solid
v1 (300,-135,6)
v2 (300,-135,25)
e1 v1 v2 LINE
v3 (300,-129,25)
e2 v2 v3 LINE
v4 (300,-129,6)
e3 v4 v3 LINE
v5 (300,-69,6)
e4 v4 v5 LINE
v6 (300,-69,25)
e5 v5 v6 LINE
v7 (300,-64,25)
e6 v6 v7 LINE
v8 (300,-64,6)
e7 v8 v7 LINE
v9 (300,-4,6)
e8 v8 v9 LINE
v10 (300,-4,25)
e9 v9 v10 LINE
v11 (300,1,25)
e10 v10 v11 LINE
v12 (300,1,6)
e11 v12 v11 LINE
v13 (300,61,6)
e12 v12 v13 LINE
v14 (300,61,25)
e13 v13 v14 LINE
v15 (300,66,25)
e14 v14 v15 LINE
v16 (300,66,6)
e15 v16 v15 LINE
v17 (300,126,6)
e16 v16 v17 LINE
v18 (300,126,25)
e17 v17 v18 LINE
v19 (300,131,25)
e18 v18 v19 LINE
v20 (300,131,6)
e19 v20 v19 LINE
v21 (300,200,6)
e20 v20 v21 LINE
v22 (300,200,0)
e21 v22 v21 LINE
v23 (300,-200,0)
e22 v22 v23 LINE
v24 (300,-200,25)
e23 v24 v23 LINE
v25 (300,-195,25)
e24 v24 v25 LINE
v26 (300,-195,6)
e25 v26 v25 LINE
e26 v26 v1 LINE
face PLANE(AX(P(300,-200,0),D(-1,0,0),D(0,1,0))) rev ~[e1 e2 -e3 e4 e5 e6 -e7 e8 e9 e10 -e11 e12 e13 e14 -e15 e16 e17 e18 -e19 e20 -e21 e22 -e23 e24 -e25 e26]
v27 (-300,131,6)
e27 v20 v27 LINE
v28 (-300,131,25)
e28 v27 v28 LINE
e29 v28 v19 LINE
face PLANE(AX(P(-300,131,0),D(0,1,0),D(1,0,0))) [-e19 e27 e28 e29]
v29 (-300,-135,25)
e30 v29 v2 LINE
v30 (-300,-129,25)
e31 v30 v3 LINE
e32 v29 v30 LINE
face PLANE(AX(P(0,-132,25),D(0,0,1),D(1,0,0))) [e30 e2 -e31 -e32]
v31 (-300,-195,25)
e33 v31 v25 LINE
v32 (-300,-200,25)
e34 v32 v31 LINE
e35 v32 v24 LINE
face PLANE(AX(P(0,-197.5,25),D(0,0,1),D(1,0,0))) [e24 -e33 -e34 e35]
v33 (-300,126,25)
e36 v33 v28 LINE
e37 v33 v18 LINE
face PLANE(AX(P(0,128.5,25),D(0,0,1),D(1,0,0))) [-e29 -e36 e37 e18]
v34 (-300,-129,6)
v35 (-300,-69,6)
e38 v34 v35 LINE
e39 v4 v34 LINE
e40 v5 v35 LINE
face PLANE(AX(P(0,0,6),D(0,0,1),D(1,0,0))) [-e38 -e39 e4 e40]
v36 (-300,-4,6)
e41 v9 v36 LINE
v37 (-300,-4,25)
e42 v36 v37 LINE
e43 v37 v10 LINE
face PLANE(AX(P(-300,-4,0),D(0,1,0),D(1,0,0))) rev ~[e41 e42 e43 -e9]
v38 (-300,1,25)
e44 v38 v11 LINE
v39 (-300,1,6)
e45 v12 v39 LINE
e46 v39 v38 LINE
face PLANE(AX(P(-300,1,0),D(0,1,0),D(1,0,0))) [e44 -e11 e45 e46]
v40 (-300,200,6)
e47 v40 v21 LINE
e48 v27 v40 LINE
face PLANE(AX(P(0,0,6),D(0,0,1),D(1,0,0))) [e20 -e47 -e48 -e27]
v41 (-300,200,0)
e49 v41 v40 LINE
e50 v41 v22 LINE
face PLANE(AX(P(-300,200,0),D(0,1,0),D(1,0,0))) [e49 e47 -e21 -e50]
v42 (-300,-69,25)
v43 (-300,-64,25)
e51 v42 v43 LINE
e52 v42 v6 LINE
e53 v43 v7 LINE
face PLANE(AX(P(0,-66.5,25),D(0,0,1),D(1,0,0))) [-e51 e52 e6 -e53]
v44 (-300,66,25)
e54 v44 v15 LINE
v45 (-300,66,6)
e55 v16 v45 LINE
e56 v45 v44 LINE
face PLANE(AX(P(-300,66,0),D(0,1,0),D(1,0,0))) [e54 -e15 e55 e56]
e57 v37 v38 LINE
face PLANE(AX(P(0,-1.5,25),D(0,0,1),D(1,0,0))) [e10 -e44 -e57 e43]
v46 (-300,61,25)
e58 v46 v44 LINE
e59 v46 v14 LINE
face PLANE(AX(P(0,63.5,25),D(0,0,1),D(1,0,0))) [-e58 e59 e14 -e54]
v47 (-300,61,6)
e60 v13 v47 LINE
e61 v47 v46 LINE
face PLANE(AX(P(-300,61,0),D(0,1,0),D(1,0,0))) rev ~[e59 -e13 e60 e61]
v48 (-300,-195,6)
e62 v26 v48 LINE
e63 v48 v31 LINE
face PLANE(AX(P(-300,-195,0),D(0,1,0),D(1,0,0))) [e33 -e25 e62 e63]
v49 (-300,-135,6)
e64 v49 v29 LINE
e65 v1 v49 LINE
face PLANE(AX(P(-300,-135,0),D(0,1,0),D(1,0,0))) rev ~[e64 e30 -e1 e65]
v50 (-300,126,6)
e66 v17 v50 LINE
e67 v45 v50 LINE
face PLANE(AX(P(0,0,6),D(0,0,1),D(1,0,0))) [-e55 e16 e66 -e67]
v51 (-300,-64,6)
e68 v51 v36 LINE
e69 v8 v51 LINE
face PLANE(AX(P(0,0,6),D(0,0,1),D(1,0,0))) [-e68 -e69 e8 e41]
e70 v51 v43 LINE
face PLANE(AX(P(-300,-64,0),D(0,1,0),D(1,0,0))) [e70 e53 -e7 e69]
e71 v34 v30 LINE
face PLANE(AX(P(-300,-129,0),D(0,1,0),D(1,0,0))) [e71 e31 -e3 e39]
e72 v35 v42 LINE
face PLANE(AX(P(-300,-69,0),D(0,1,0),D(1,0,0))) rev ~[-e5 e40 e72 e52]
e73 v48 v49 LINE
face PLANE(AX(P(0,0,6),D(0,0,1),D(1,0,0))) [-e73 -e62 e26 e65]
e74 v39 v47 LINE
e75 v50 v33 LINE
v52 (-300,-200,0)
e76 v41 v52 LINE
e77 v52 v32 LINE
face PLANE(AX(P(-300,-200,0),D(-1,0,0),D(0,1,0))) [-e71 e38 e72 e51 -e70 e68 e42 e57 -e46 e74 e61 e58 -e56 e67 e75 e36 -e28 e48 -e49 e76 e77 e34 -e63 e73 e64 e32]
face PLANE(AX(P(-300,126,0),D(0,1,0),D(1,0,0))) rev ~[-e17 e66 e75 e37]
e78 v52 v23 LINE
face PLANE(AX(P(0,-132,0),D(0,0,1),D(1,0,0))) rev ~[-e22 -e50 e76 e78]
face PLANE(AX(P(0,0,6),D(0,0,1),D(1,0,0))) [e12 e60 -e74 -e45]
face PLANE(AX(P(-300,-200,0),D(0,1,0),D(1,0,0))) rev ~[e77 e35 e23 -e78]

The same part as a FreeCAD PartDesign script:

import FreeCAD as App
import Part
import Sketcher
from FreeCAD import Vector
Q = App.Units.Quantity

doc = App.newDocument("Part")
body = doc.addObject("PartDesign::Body", "Body")

# Sketch on XY plane
sketch1 = body.newObject("Sketcher::SketchObject", "Sketch")
sketch1.AttachmentSupport = (doc.getObject("XY_Plane"), [""])
sketch1.MapMode = "FlatFace"
sketch1.addGeometry([
    Part.LineSegment(Vector(-300, 200, 0), Vector(-300, -200, 0)),
    Part.LineSegment(Vector(-300, -200, 0), Vector(300, -200, 0)),
    Part.LineSegment(Vector(300, -200, 0), Vector(300, 200, 0)),
    Part.LineSegment(Vector(300, 200, 0), Vector(-300, 200, 0)),
], False)
sketch1.addConstraint([
    Sketcher.Constraint("Coincident", 0, 2, 1, 1),
    Sketcher.Constraint("Coincident", 1, 2, 2, 1),
    Sketcher.Constraint("Coincident", 2, 2, 3, 1),
    Sketcher.Constraint("Coincident", 3, 2, 0, 1),
    Sketcher.Constraint("Vertical", 0),
    Sketcher.Constraint("Horizontal", 1),
    Sketcher.Constraint("Vertical", 2),
    Sketcher.Constraint("Horizontal", 3),
    Sketcher.Constraint("Symmetric", 0, 2, 2, 2, -1, 1),
    Sketcher.Constraint("DistanceX", 1, 1, 1, 2, Q("600 mm")),
    Sketcher.Constraint("DistanceY", 0, 2, 0, 1, Q("400 mm")),
])
pad1 = body.newObject("PartDesign::Pad", "Pad")
pad1.Profile = sketch1
pad1.Length = 6

# Sketch on XY plane
sketch2 = body.newObject("Sketcher::SketchObject", "Sketch001")
sketch2.AttachmentSupport = (doc.getObject("XY_Plane"), [""])
sketch2.MapMode = "FlatFace"
sketch2.addGeometry([
    Part.LineSegment(Vector(-300, -129, 0), Vector(-300, -135, 0)),  # 0
    Part.LineSegment(Vector(-300, -135, 0), Vector(300, -135, 0)),  # 1
    Part.LineSegment(Vector(300, -135, 0), Vector(300, -129, 0)),  # 2
    Part.LineSegment(Vector(300, -129, 0), Vector(-300, -129, 0)),  # 3
    Part.LineSegment(Vector(-300, -64, 0), Vector(-300, -69, 0)),  # 4
    Part.LineSegment(Vector(-300, -69, 0), Vector(300, -69, 0)),  # 5
    Part.LineSegment(Vector(300, -69, 0), Vector(300, -64, 0)),  # 6
    Part.LineSegment(Vector(300, -64, 0), Vector(-300, -64, 0)),  # 7
    Part.LineSegment(Vector(-300, 1, 0), Vector(-300, -4, 0)),  # 8
    Part.LineSegment(Vector(-300, -4, 0), Vector(300, -4, 0)),  # 9
    Part.LineSegment(Vector(300, -4, 0), Vector(300, 1, 0)),  # 10
    Part.LineSegment(Vector(300, 1, 0), Vector(-300, 1, 0)),  # 11
    Part.LineSegment(Vector(-300, 66, 0), Vector(-300, 61, 0)),  # 12
    Part.LineSegment(Vector(-300, 61, 0), Vector(300, 61, 0)),  # 13
    Part.LineSegment(Vector(300, 61, 0), Vector(300, 66, 0)),  # 14
    Part.LineSegment(Vector(300, 66, 0), Vector(-300, 66, 0)),  # 15
    Part.LineSegment(Vector(-300, 131, 0), Vector(-300, 126, 0)),  # 16
    Part.LineSegment(Vector(-300, 126, 0), Vector(300, 126, 0)),  # 17
    Part.LineSegment(Vector(300, 126, 0), Vector(300, 131, 0)),  # 18
    Part.LineSegment(Vector(300, 131, 0), Vector(-300, 131, 0)),  # 19
    Part.LineSegment(Vector(-300, -195, 0), Vector(-300, -200, 0)),  # 20
    Part.LineSegment(Vector(-300, -200, 0), Vector(300, -200, 0)),  # 21
    Part.LineSegment(Vector(300, -200, 0), Vector(300, -195, 0)),  # 22
    Part.LineSegment(Vector(300, -195, 0), Vector(-300, -195, 0)),  # 23
], False)
sketch2.addConstraint([
    Sketcher.Constraint("Coincident", 0, 2, 1, 1),
    Sketcher.Constraint("Coincident", 1, 2, 2, 1),
    Sketcher.Constraint("Coincident", 2, 2, 3, 1),
    Sketcher.Constraint("Coincident", 3, 2, 0, 1),
    Sketcher.Constraint("Coincident", 4, 2, 5, 1),
    Sketcher.Constraint("Coincident", 5, 2, 6, 1),
    Sketcher.Constraint("Coincident", 6, 2, 7, 1),
    Sketcher.Constraint("Coincident", 7, 2, 4, 1),
    Sketcher.Constraint("Coincident", 8, 2, 9, 1),
    Sketcher.Constraint("Coincident", 9, 2, 10, 1),
    Sketcher.Constraint("Coincident", 10, 2, 11, 1),
    Sketcher.Constraint("Coincident", 11, 2, 8, 1),
    Sketcher.Constraint("Coincident", 12, 2, 13, 1),
    Sketcher.Constraint("Coincident", 13, 2, 14, 1),
    Sketcher.Constraint("Coincident", 14, 2, 15, 1),
    Sketcher.Constraint("Coincident", 15, 2, 12, 1),
    Sketcher.Constraint("Coincident", 16, 2, 17, 1),
    Sketcher.Constraint("Coincident", 17, 2, 18, 1),
    Sketcher.Constraint("Coincident", 18, 2, 19, 1),
    Sketcher.Constraint("Coincident", 19, 2, 16, 1),
    Sketcher.Constraint("Coincident", 20, 2, 21, 1),
    Sketcher.Constraint("Coincident", 21, 2, 22, 1),
    Sketcher.Constraint("Coincident", 22, 2, 23, 1),
    Sketcher.Constraint("Coincident", 23, 2, 20, 1),
    Sketcher.Constraint("Vertical", 0),
    Sketcher.Constraint("Horizontal", 1),
    Sketcher.Constraint("Vertical", 2),
    Sketcher.Constraint("Horizontal", 3),
    Sketcher.Constraint("Vertical", 4),
    Sketcher.Constraint("Horizontal", 5),
    Sketcher.Constraint("Vertical", 6),
    Sketcher.Constraint("Horizontal", 7),
    Sketcher.Constraint("Vertical", 8),
    Sketcher.Constraint("Horizontal", 9),
    Sketcher.Constraint("Vertical", 10),
    Sketcher.Constraint("Horizontal", 11),
    Sketcher.Constraint("Vertical", 12),
    Sketcher.Constraint("Horizontal", 13),
    Sketcher.Constraint("Vertical", 14),
    Sketcher.Constraint("Horizontal", 15),
    Sketcher.Constraint("Vertical", 16),
    Sketcher.Constraint("Horizontal", 17),
    Sketcher.Constraint("Vertical", 18),
    Sketcher.Constraint("Horizontal", 19),
    Sketcher.Constraint("Vertical", 20),
    Sketcher.Constraint("Horizontal", 21),
    Sketcher.Constraint("Vertical", 22),
    Sketcher.Constraint("Horizontal", 23),
    Sketcher.Constraint("Vertical", 3, 2, 4, 2),
    Sketcher.Constraint("Vertical", 2, 2, 5, 2),
    Sketcher.Constraint("Vertical", 7, 2, 8, 2),
    Sketcher.Constraint("Vertical", 6, 2, 9, 2),
    Sketcher.Constraint("Vertical", 11, 2, 12, 2),
    Sketcher.Constraint("Vertical", 10, 2, 13, 2),
    Sketcher.Constraint("Vertical", 15, 2, 16, 2),
    Sketcher.Constraint("Vertical", 14, 2, 17, 2),
    Sketcher.Constraint("Vertical", 19, 2, 20, 2),
    Sketcher.Constraint("Vertical", 18, 2, 21, 2),
    Sketcher.Constraint("Equal", 6, 8),
    Sketcher.Constraint("Equal", 10, 12),
    Sketcher.Constraint("Equal", 14, 16),
    Sketcher.Constraint("Equal", 18, 20),
    Sketcher.Constraint("DistanceX", 1, 1, 1, 2, Q("600 mm")),
    Sketcher.Constraint("DistanceY", 0, 2, 0, 1, Q("6 mm")),
    Sketcher.Constraint("DistanceY", 4, 2, 4, 1, Q("5 mm")),
    Sketcher.Constraint("DistanceX", 0, 2, -1, 1, Q("300 mm")),
    Sketcher.Constraint("DistanceY", 0, 2, -1, 1, Q("135 mm")),
    Sketcher.Constraint("DistanceY", 4, 2, -1, 1, Q("69 mm")),
    Sketcher.Constraint("DistanceY", 8, 2, -1, 1, Q("4 mm")),
    Sketcher.Constraint("DistanceY", -1, 1, 12, 2, Q("61 mm")),
    Sketcher.Constraint("DistanceY", -1, 1, 16, 2, Q("126 mm")),
    Sketcher.Constraint("DistanceY", 20, 2, -1, 1, Q("200 mm")),
])
pad2 = body.newObject("PartDesign::Pad", "Pad001")
pad2.Profile = sketch2
pad2.Length = 25

doc.recompute()
